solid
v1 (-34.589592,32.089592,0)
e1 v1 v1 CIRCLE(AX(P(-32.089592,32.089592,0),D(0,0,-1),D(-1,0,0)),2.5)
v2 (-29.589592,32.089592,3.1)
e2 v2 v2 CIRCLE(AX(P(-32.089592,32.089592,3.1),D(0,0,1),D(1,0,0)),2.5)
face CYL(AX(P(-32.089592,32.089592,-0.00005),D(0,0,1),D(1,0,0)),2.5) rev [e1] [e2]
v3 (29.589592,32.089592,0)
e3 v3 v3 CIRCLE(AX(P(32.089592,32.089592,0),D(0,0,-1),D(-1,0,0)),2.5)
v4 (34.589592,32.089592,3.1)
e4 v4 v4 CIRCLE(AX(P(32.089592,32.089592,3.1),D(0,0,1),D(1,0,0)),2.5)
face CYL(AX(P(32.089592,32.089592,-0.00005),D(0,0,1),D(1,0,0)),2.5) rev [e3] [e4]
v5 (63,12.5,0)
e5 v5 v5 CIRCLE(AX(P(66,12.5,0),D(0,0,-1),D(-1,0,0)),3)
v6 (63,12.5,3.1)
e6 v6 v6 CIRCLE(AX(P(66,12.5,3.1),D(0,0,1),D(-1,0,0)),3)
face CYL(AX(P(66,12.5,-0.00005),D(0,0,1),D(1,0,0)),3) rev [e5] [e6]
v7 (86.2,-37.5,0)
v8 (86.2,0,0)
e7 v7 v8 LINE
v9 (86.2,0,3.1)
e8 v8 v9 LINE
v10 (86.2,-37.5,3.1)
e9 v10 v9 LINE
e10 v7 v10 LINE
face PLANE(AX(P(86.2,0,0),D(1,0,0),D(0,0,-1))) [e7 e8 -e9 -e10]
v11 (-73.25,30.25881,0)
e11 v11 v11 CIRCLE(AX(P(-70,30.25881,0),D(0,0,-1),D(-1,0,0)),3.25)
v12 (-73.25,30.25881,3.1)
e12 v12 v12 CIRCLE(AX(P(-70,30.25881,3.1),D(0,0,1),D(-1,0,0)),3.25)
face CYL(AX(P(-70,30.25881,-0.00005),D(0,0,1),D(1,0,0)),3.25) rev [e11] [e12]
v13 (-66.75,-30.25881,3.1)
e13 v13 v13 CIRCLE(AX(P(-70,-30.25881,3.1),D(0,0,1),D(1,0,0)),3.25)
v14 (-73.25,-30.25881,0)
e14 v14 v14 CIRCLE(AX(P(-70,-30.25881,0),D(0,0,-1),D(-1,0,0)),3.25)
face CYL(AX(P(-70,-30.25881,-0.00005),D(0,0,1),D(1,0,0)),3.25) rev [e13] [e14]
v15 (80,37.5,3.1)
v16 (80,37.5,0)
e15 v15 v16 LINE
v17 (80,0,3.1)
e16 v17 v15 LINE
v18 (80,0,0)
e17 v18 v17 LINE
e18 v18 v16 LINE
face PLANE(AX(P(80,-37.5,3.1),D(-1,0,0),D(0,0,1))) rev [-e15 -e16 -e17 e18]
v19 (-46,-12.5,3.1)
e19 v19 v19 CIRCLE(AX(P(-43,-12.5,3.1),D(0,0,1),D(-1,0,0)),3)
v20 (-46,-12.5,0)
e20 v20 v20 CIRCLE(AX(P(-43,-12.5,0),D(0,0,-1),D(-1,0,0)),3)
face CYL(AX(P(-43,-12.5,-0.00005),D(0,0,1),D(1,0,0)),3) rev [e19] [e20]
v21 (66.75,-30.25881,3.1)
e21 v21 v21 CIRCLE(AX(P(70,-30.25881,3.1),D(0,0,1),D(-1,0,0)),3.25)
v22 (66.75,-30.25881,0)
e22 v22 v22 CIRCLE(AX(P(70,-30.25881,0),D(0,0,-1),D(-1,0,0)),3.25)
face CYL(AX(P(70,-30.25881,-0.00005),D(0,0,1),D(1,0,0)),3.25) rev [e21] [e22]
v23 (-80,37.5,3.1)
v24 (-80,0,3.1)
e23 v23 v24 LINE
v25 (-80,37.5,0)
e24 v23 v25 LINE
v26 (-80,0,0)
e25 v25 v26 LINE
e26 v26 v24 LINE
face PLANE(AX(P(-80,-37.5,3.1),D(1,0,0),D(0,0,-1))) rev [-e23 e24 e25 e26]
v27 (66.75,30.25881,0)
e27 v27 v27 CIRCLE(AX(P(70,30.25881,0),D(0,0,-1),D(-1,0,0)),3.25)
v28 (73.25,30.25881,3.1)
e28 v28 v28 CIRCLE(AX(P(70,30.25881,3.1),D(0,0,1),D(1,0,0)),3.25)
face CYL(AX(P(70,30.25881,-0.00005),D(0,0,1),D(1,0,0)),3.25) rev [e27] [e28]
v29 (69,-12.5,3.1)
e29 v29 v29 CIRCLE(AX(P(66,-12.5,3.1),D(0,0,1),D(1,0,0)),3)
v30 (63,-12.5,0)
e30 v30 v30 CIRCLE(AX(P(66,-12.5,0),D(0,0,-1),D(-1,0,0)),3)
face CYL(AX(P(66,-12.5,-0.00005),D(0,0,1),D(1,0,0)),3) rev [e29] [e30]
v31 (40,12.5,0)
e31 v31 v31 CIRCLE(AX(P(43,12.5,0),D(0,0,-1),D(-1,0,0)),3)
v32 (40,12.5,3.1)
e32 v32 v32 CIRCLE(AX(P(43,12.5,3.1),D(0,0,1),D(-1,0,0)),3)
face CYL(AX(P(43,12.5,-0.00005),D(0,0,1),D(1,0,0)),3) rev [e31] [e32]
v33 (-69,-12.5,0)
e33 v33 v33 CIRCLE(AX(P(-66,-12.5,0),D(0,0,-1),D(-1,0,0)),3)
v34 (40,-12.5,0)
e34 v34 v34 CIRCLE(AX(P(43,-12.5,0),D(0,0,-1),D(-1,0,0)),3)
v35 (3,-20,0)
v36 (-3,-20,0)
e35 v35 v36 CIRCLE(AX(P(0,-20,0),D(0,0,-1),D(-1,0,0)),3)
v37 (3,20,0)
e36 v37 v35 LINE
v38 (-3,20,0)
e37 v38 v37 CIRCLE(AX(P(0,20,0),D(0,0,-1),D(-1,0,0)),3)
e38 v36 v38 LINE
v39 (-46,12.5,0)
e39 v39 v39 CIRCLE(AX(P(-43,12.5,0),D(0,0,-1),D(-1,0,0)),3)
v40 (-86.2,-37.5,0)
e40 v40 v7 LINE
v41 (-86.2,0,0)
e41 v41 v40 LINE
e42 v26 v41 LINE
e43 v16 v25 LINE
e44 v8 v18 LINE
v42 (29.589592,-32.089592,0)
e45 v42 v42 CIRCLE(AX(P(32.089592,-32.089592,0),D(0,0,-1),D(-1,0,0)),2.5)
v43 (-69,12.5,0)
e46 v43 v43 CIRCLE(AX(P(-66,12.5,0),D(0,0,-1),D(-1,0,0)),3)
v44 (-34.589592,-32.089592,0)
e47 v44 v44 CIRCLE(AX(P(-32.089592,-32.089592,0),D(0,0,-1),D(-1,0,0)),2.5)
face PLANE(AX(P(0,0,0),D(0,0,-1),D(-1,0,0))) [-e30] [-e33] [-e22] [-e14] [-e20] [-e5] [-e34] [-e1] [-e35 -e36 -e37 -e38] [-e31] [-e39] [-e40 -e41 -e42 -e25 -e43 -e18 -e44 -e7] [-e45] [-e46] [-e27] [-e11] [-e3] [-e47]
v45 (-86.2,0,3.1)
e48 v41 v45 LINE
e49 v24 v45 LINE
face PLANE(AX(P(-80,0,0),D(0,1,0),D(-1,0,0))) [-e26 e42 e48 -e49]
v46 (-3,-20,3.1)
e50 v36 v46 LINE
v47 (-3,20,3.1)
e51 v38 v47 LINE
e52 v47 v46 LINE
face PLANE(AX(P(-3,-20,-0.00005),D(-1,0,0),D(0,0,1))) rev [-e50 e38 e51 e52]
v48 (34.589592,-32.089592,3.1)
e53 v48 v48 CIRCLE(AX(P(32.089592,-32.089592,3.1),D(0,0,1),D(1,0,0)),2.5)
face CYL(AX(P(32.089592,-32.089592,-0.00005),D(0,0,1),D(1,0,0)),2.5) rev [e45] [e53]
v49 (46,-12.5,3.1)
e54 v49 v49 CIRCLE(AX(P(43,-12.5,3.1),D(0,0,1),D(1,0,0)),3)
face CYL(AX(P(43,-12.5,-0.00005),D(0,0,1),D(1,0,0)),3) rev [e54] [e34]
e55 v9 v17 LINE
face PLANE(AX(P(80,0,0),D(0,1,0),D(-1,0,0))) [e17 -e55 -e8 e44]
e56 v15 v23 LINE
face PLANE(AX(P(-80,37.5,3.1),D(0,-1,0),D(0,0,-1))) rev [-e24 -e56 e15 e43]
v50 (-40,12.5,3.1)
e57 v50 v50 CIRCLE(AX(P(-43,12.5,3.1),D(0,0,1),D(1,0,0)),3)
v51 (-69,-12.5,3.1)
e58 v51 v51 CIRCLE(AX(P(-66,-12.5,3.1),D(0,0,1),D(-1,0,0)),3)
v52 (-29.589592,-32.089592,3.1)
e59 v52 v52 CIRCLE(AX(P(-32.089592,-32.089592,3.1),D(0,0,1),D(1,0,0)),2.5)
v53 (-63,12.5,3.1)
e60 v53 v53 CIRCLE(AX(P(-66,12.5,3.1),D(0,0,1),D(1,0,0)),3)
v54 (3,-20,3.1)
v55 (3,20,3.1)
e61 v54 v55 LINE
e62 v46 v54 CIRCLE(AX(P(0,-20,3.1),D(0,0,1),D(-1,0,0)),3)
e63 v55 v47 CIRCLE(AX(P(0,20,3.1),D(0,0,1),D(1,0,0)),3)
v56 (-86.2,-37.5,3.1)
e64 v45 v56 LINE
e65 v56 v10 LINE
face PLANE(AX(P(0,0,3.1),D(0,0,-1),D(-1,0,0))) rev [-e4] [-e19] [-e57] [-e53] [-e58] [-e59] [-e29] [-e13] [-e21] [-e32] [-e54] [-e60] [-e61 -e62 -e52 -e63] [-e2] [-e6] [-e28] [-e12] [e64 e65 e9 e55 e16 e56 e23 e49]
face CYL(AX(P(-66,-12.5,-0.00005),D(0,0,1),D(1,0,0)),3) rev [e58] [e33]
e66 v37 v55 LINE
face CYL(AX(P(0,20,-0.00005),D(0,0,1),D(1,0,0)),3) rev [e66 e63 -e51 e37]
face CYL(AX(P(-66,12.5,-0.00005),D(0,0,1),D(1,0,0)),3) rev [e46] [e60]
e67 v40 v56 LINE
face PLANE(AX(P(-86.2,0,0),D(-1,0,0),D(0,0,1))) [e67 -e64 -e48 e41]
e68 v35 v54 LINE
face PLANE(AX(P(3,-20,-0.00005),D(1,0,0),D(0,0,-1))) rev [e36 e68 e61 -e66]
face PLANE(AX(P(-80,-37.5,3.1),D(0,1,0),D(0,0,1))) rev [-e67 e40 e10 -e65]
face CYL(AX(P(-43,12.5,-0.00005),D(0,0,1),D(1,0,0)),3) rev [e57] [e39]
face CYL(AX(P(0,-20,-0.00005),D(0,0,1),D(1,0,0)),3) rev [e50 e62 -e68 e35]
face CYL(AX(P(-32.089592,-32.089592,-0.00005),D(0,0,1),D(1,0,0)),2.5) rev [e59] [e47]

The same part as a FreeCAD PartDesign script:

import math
import FreeCAD as App
import Part
import Sketcher


def add_polygon(sketch, points):
    """Adds a closed chain of lines whose ends are joined by coincident constraints."""
    first, n = sketch.GeometryCount, len(points)
    for a, b in zip(points, points[1:] + points[:1]):
        sketch.addGeometry(Part.LineSegment(App.Vector(*a, 0), App.Vector(*b, 0)), False)
    for i in range(n):
        sketch.addConstraint(Sketcher.Constraint("Coincident", first + i, 2, first + (i + 1) % n, 1))

doc = App.newDocument("Part")
params = doc.addObject("Spreadsheet::Sheet", "Params")
for row, (alias, value) in enumerate([
    ("sketch1_width", "160 mm"),
    ("sketch1_height", "75 mm"),
    ("pad1_length", "3.1 mm"),
    ("sketch2_width", "6.2 mm"),
    ("sketch2_height", "37.5 mm"),
    ("sketch3_diameter", "5 mm"),
    ("sketch3_diameter2", "6 mm"),
    ("sketch3_diameter3", "6.5 mm"),
    ("sketch3_height", "40 mm"),
], start=1):
    params.set(f"A{row}", alias)
    params.set(f"B{row}", "=" + value)
    params.setAlias(f"B{row}", alias)

body = doc.addObject("PartDesign::Body", "Body")

# Sketch on XY plane
sketch1 = body.newObject("Sketcher::SketchObject", "Sketch")
sketch1.AttachmentSupport = (doc.getObject("XY_Plane"), [""])
sketch1.MapMode = "FlatFace"
add_polygon(sketch1, [(-80, 38), (-80, -38), (80, -38), (80, 38)])  # lines 0-3
sketch1.addConstraint([
    Sketcher.Constraint("Vertical", 0),
    Sketcher.Constraint("Horizontal", 1),
    Sketcher.Constraint("Vertical", 2),
    Sketcher.Constraint("Horizontal", 3),
    Sketcher.Constraint("Symmetric", 0, 2, 2, 2, -1, 1),
    Sketcher.Constraint("DistanceX", 1, 1, 1, 2, 160.0),
    Sketcher.Constraint("DistanceY", 0, 2, 0, 1, 75.0),
])
sketch1.setExpression("Constraints[9]", "Params.sketch1_width")
sketch1.setExpression("Constraints[10]", "Params.sketch1_height")
pad1 = body.newObject("PartDesign::Pad", "Pad")
pad1.Profile = sketch1
pad1.setExpression("Length", "Params.pad1_length")

# Sketch on XY plane
sketch2 = body.newObject("Sketcher::SketchObject", "Sketch001")
sketch2.AttachmentSupport = (doc.getObject("XY_Plane"), [""])
sketch2.MapMode = "FlatFace"
sketch2.AttachmentOffset = App.Placement(App.Vector(0, 0, 3.1), App.Rotation())
add_polygon(sketch2, [(80, 0), (80, -38), (86, -38), (86, 0)])  # lines 0-3
add_polygon(sketch2, [(-86, 0), (-86, -38), (-80, -38), (-80, 0)])  # lines 4-7
sketch2.addConstraint([
    Sketcher.Constraint("Vertical", 0),
    Sketcher.Constraint("Horizontal", 1),
    Sketcher.Constraint("Vertical", 2),
    Sketcher.Constraint("Horizontal", 3),
    Sketcher.Constraint("Vertical", 4),
    Sketcher.Constraint("Horizontal", 5),
    Sketcher.Constraint("Vertical", 6),
    Sketcher.Constraint("Horizontal", 7),
    Sketcher.Constraint("Symmetric", 3, 2, 6, 2, -1, 1),
    Sketcher.Constraint("Symmetric", 1, 2, 4, 2, -2),
    Sketcher.Constraint("PointOnObject", 2, 2, -1),
    Sketcher.Constraint("DistanceX", 1, 1, 1, 2, 6.2),
    Sketcher.Constraint("DistanceY", 0, 2, 0, 1, 37.5),
    Sketcher.Constraint("DistanceX", -1, 1, 0, 2, 80.0),
])
sketch2.setExpression("Constraints[19]", "Params.sketch2_width")
sketch2.setExpression("Constraints[20]", "Params.sketch2_height")
pad2 = body.newObject("PartDesign::Pad", "Pad001")
pad2.Profile = sketch2
pad2.Type = "UpToLast"
pad2.Reversed = True

# Sketch on XY plane
sketch3 = body.newObject("Sketcher::SketchObject", "Sketch002")
sketch3.AttachmentSupport = (doc.getObject("XY_Plane"), [""])
sketch3.MapMode = "FlatFace"
sketch3.AttachmentOffset = App.Placement(App.Vector(0, 0, 3.1), App.Rotation())
sketch3.addGeometry([
    Part.Circle(App.Vector(32.1, 32.1, 0), App.Vector(0, 0, 1), 2.5),  # 0
    Part.Circle(App.Vector(32.1, -32.1, 0), App.Vector(0, 0, 1), 2.5),  # 1
    Part.Circle(App.Vector(-32.1, -32.1, 0), App.Vector(0, 0, 1), 2.5),  # 2
    Part.Circle(App.Vector(-32.1, 32.1, 0), App.Vector(0, 0, 1), 2.5),  # 3
    Part.Circle(App.Vector(-66, 12.5, 0), App.Vector(0, 0, 1), 3),  # 4
    Part.Circle(App.Vector(-43, 12.5, 0), App.Vector(0, 0, 1), 3),  # 5
    Part.Circle(App.Vector(-43, -12.5, 0), App.Vector(0, 0, 1), 3),  # 6
    Part.Circle(App.Vector(-66, -12.5, 0), App.Vector(0, 0, 1), 3),  # 7
    Part.Circle(App.Vector(43, 12.5, 0), App.Vector(0, 0, 1), 3),  # 8
    Part.Circle(App.Vector(66, 12.5, 0), App.Vector(0, 0, 1), 3),  # 9
    Part.Circle(App.Vector(66, -12.5, 0), App.Vector(0, 0, 1), 3),  # 10
    Part.Circle(App.Vector(43, -12.5, 0), App.Vector(0, 0, 1), 3),  # 11
    Part.Circle(App.Vector(-70, -30.3, 0), App.Vector(0, 0, 1), 3.2),  # 12
    Part.Circle(App.Vector(70, -30.3, 0), App.Vector(0, 0, 1), 3.2),  # 13
    Part.Circle(App.Vector(-70, 30.3, 0), App.Vector(0, 0, 1), 3.2),  # 14
    Part.Circle(App.Vector(70, 30.3, 0), App.Vector(0, 0, 1), 3.2),  # 15
    Part.LineSegment(App.Vector(3, -20, 0), App.Vector(3, 20, 0)),  # 16
    Part.ArcOfCircle(Part.Circle(App.Vector(0, 20, 0), App.Vector(0, 0, 1), 3), math.radians(0), math.radians(180)),  # 17
    Part.LineSegment(App.Vector(-3, 20, 0), App.Vector(-3, -20, 0)),  # 18
    Part.ArcOfCircle(Part.Circle(App.Vector(0, -20, 0), App.Vector(0, 0, 1), 3), math.radians(180), math.radians(360)),  # 19
], False)
sketch3.addConstraint([
    Sketcher.Constraint("Tangent", 16, 2, 17, 1),
    Sketcher.Constraint("Tangent", 17, 2, 18, 1),
    Sketcher.Constraint("Tangent", 18, 2, 19, 1),
    Sketcher.Constraint("Tangent", 19, 2, 16, 1),
    Sketcher.Constraint("Vertical", 16),
    Sketcher.Constraint("Vertical", 18),
    Sketcher.Constraint("Equal", 0, 1),
    Sketcher.Constraint("Equal", 1, 2),
    Sketcher.Constraint("Equal", 2, 3),
    Sketcher.Constraint("Equal", 4, 5),
    Sketcher.Constraint("Equal", 5, 6),
    Sketcher.Constraint("Equal", 6, 7),
    Sketcher.Constraint("Equal", 7, 8),
    Sketcher.Constraint("Equal", 8, 9),
    Sketcher.Constraint("Equal", 9, 10),
    Sketcher.Constraint("Equal", 10, 11),
    Sketcher.Constraint("Equal", 12, 13),
    Sketcher.Constraint("Equal", 13, 14),
    Sketcher.Constraint("Equal", 14, 15),
    Sketcher.Constraint("Equal", 11, 17),
    Sketcher.Constraint("Symmetric", 0, 3, 2, 3, -1, 1),
    Sketcher.Constraint("Symmetric", 1, 3, 3, 3, -1, 1),
    Sketcher.Constraint("Symmetric", 6, 3, 8, 3, -1, 1),
    Sketcher.Constraint("Symmetric", 7, 3, 9, 3, -1, 1),
    Sketcher.Constraint("Symmetric", 4, 3, 10, 3, -1, 1),
    Sketcher.Constraint("Symmetric", 5, 3, 11, 3, -1, 1),
    Sketcher.Constraint("Symmetric", 13, 3, 14, 3, -1, 1),
    Sketcher.Constraint("Symmetric", 12, 3, 15, 3, -1, 1),
    Sketcher.Constraint("Symmetric", 17, 3, 19, 3, -1, 1),
    Sketcher.Constraint("Symmetric", 1, 3, 2, 3, -2),
    Sketcher.Constraint("Symmetric", 5, 3, 8, 3, -2),
    Sketcher.Constraint("Symmetric", 4, 3, 9, 3, -2),
    Sketcher.Constraint("Symmetric", 12, 3, 13, 3, -2),
    Sketcher.Constraint("Horizontal", 4, 3, 5, 3),
    Sketcher.Constraint("Diameter", 0, 5.0),
    Sketcher.Constraint("Diameter", 4, 6.0),
    Sketcher.Constraint("Diameter", 12, 6.5),
    Sketcher.Constraint("DistanceY", 16, 1, 16, 2, 40.0),
    Sketcher.Constraint("DistanceX", 4, 3, -1, 1, 66.0),
    Sketcher.Constraint("DistanceX", 5, 3, -1, 1, 43.0),
    Sketcher.Constraint("DistanceX", 12, 3, -1, 1, 70.0),
    Sketcher.Constraint("DistanceY", 6, 3, 5, 3, 25.0),
    Sketcher.Constraint("DistanceY", 12, 3, -1, 1, 30.25881),
    Sketcher.Constraint("DistanceX", -1, 1, 0, 3, 32.089592),
    Sketcher.Constraint("DistanceY", -1, 1, 0, 3, 32.089592),
])
sketch3.setExpression("Constraints[34]", "Params.sketch3_diameter")
sketch3.setExpression("Constraints[35]", "Params.sketch3_diameter2")
sketch3.setExpression("Constraints[36]", "Params.sketch3_diameter3")
sketch3.setExpression("Constraints[37]", "Params.sketch3_height")
pocket1 = body.newObject("PartDesign::Pocket", "Pocket")
pocket1.Profile = sketch3
pocket1.Type = "ThroughAll"

doc.recompute()
